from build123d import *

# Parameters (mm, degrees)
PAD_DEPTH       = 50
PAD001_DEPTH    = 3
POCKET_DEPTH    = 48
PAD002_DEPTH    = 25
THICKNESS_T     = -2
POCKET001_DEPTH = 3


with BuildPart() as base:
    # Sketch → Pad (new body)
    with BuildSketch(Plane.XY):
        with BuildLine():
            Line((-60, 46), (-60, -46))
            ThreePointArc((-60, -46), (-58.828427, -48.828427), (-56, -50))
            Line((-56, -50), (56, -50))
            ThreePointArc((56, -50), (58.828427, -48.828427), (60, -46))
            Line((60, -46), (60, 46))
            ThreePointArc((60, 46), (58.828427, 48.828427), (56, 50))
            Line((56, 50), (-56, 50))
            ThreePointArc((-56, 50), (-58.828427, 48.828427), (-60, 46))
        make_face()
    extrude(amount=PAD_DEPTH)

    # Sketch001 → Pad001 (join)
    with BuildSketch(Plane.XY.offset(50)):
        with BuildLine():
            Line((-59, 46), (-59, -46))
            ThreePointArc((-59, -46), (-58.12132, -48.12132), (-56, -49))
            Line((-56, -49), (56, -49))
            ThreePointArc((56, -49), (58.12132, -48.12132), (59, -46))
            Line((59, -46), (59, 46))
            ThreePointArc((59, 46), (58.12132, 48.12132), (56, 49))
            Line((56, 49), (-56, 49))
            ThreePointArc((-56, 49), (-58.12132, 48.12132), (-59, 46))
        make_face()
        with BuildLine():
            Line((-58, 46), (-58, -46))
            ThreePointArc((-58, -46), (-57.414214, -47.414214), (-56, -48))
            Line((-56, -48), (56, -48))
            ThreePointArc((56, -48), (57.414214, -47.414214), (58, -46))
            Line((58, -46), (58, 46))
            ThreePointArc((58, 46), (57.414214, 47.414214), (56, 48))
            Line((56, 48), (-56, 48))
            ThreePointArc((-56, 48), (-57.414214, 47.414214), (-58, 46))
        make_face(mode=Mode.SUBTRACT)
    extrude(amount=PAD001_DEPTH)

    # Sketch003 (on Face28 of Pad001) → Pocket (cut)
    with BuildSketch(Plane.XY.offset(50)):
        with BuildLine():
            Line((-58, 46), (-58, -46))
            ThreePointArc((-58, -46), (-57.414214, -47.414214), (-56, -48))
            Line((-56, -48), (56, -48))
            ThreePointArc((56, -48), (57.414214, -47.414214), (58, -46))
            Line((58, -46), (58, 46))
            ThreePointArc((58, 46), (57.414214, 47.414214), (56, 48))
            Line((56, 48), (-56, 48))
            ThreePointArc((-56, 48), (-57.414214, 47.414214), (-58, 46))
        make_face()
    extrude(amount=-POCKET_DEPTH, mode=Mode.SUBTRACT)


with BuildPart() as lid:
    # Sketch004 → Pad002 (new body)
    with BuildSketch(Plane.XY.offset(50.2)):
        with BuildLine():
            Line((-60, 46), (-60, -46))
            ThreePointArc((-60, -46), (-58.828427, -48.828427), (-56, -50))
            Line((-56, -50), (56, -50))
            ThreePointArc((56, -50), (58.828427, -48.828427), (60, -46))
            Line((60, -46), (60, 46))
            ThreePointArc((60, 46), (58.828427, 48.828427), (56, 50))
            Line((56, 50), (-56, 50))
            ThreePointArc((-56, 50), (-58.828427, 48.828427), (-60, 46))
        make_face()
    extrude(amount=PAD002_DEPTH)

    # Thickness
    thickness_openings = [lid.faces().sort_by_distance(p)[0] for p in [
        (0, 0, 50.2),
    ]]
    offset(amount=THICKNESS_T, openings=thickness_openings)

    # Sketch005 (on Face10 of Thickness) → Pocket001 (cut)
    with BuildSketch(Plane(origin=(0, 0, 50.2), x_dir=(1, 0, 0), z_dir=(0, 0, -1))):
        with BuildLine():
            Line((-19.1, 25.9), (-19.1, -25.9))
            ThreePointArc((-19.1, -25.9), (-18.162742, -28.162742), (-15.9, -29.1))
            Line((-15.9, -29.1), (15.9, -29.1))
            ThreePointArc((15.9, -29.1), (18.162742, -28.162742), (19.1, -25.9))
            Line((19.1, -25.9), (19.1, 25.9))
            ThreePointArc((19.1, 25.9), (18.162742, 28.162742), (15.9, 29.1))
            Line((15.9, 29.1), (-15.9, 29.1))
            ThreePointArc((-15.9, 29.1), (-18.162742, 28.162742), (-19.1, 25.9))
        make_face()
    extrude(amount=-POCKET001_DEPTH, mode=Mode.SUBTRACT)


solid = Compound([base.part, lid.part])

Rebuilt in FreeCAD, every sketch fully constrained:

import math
import FreeCAD as App
import Part
import Sketcher

V = App.Vector
Q = App.Units.Quantity


def faces_at(feature, points):
    """Names of the faces that lie closest to the given points."""
    faces = feature.Shape.Faces
    near = lambda p: min(range(len(faces)), key=lambda i: faces[i].distToShape(Part.Vertex(*p))[0])
    return sorted({f"Face{near(p) + 1}" for p in points})

doc = App.newDocument("Part")
params = doc.addObject("Spreadsheet::Sheet", "Params")
for row, (alias, value) in enumerate([
    ("sketch1_radius", "4 mm"),
    ("sketch1_width", "112 mm"),
    ("sketch1_height", "92 mm"),
    ("pad1_length", "50 mm"),
    ("sketch2_radius", "3.000001 mm"),
    ("sketch2_radius2", "1.999999 mm"),
    ("sketch2_width", "112 mm"),
    ("sketch2_height", "92 mm"),
    ("pad2_length", "3 mm"),
    ("sketch3_radius", "1.999999 mm"),
    ("sketch3_width", "112 mm"),
    ("sketch3_height", "92 mm"),
    ("pocket1_length", "48 mm"),
    ("sketch4_radius", "4 mm"),
    ("sketch4_width", "112 mm"),
    ("sketch4_height", "92 mm"),
    ("pad3_length", "25 mm"),
    ("thickness_wall", "2 mm"),
    ("sketch5_radius", "3.199999 mm"),
    ("sketch5_width", "31.8 mm"),
    ("sketch5_height", "51.8 mm"),
    ("pocket2_length", "3 mm"),
], start=1):
    params.set(f"A{row}", alias)
    params.set(f"B{row}", "=" + value)
    params.setAlias(f"B{row}", alias)

body = doc.addObject("PartDesign::Body", "Body")

# Sketch on XY plane
sketch1 = body.newObject("Sketcher::SketchObject", "Sketch")
sketch1.AttachmentSupport = (doc.getObject("XY_Plane"), [""])
sketch1.MapMode = "FlatFace"
sketch1.addGeometry([
    Part.LineSegment(V(-60, 46, 0), V(-60, -46, 0)),  # 0
    Part.ArcOfCircle(Part.Circle(V(-56, -46, 0), V(0, 0, 1), 4), math.radians(-180), math.radians(-90)),  # 1
    Part.LineSegment(V(-56, -50, 0), V(56, -50, 0)),  # 2
    Part.ArcOfCircle(Part.Circle(V(56, -46, 0), V(0, 0, 1), 4), math.radians(-90), math.radians(0)),  # 3
    Part.LineSegment(V(60, -46, 0), V(60, 46, 0)),  # 4
    Part.ArcOfCircle(Part.Circle(V(56, 46, 0), V(0, 0, 1), 4), math.radians(0), math.radians(90)),  # 5
    Part.LineSegment(V(56, 50, 0), V(-56, 50, 0)),  # 6
    Part.ArcOfCircle(Part.Circle(V(-56, 46, 0), V(0, 0, 1), 4), math.radians(90), math.radians(180)),  # 7
], False)
sketch1.addConstraint([
    Sketcher.Constraint("Tangent", 0, 2, 1, 1),
    Sketcher.Constraint("Tangent", 1, 2, 2, 1),
    Sketcher.Constraint("Tangent", 2, 2, 3, 1),
    Sketcher.Constraint("Tangent", 3, 2, 4, 1),
    Sketcher.Constraint("Tangent", 4, 2, 5, 1),
    Sketcher.Constraint("Tangent", 5, 2, 6, 1),
    Sketcher.Constraint("Tangent", 6, 2, 7, 1),
    Sketcher.Constraint("Tangent", 7, 2, 0, 1),
    Sketcher.Constraint("Vertical", 0),
    Sketcher.Constraint("Horizontal", 2),
    Sketcher.Constraint("Vertical", 4),
    Sketcher.Constraint("Horizontal", 6),
    Sketcher.Constraint("Equal", 1, 3),
    Sketcher.Constraint("Equal", 3, 5),
    Sketcher.Constraint("Equal", 5, 7),
    Sketcher.Constraint("Symmetric", 1, 3, 5, 3, -1, 1),
    Sketcher.Constraint("Radius", 1, Q("4 mm")),
    Sketcher.Constraint("DistanceX", 2, 1, 2, 2, Q("112 mm")),
    Sketcher.Constraint("DistanceY", 0, 2, 0, 1, Q("92 mm")),
])
sketch1.setExpression("Constraints[16]", "Params.sketch1_radius")
sketch1.setExpression("Constraints[17]", "Params.sketch1_width")
sketch1.setExpression("Constraints[18]", "Params.sketch1_height")
pad1 = body.newObject("PartDesign::Pad", "Pad")
pad1.Profile = sketch1
pad1.setExpression("Length", "Params.pad1_length")

# Sketch on XY plane
sketch2 = body.newObject("Sketcher::SketchObject", "Sketch001")
sketch2.AttachmentSupport = (doc.getObject("XY_Plane"), [""])
sketch2.MapMode = "FlatFace"
sketch2.AttachmentOffset = App.Placement(V(0, 0, 50), App.Rotation())
sketch2.addGeometry([
    Part.LineSegment(V(-59, 46, 0), V(-59, -46, 0)),  # 0
    Part.ArcOfCircle(Part.Circle(V(-56, -46, 0), V(0, 0, 1), 3), math.radians(-180), math.radians(-90)),  # 1
    Part.LineSegment(V(-56, -49, 0), V(56, -49, 0)),  # 2
    Part.ArcOfCircle(Part.Circle(V(56, -46, 0), V(0, 0, 1), 3), math.radians(-90), math.radians(0)),  # 3
    Part.LineSegment(V(59, -46, 0), V(59, 46, 0)),  # 4
    Part.ArcOfCircle(Part.Circle(V(56, 46, 0), V(0, 0, 1), 3), math.radians(0), math.radians(90)),  # 5
    Part.LineSegment(V(56, 49, 0), V(-56, 49, 0)),  # 6
    Part.ArcOfCircle(Part.Circle(V(-56, 46, 0), V(0, 0, 1), 3), math.radians(90), math.radians(180)),  # 7
    Part.LineSegment(V(-58, -46, 0), V(-58, 46, 0)),  # 8
    Part.ArcOfCircle(Part.Circle(V(-56, 46, 0), V(0, 0, 1), 2), math.radians(90), math.radians(180)),  # 9
    Part.LineSegment(V(-56, 48, 0), V(56, 48, 0)),  # 10
    Part.ArcOfCircle(Part.Circle(V(56, 46, 0), V(0, 0, 1), 2), math.radians(0), math.radians(90)),  # 11
    Part.LineSegment(V(58, 46, 0), V(58, -46, 0)),  # 12
    Part.ArcOfCircle(Part.Circle(V(56, -46, 0), V(0, 0, 1), 2), math.radians(-90), math.radians(0)),  # 13
    Part.LineSegment(V(56, -48, 0), V(-56, -48, 0)),  # 14
    Part.ArcOfCircle(Part.Circle(V(-56, -46, 0), V(0, 0, 1), 2), math.radians(180), math.radians(270)),  # 15
], False)
sketch2.addConstraint([
    Sketcher.Constraint("Tangent", 0, 2, 1, 1),
    Sketcher.Constraint("Tangent", 1, 2, 2, 1),
    Sketcher.Constraint("Tangent", 2, 2, 3, 1),
    Sketcher.Constraint("Tangent", 3, 2, 4, 1),
    Sketcher.Constraint("Tangent", 4, 2, 5, 1),
    Sketcher.Constraint("Tangent", 5, 2, 6, 1),
    Sketcher.Constraint("Tangent", 6, 2, 7, 1),
    Sketcher.Constraint("Tangent", 7, 2, 0, 1),
    Sketcher.Constraint("Tangent", 8, 2, 9, 2),
    Sketcher.Constraint("Tangent", 9, 1, 10, 1),
    Sketcher.Constraint("Tangent", 10, 2, 11, 2),
    Sketcher.Constraint("Tangent", 11, 1, 12, 1),
    Sketcher.Constraint("Tangent", 12, 2, 13, 2),
    Sketcher.Constraint("Tangent", 13, 1, 14, 1),
    Sketcher.Constraint("Tangent", 14, 2, 15, 2),
    Sketcher.Constraint("Tangent", 15, 1, 8, 1),
    Sketcher.Constraint("Vertical", 0),
    Sketcher.Constraint("Horizontal", 2),
    Sketcher.Constraint("Vertical", 4),
    Sketcher.Constraint("Horizontal", 6),
    Sketcher.Constraint("Vertical", 8),
    Sketcher.Constraint("Horizontal", 10),
    Sketcher.Constraint("Vertical", 12),
    Sketcher.Constraint("Horizontal", 14),
    Sketcher.Constraint("Coincident", 9, 3, 7, 3),
    Sketcher.Constraint("Coincident", 11, 3, 5, 3),
    Sketcher.Constraint("Coincident", 13, 3, 3, 3),
    Sketcher.Constraint("Equal", 1, 3),
    Sketcher.Constraint("Equal", 3, 5),
    Sketcher.Constraint("Equal", 5, 7),
    Sketcher.Constraint("Equal", 13, 15),
    Sketcher.Constraint("Symmetric", 1, 3, 5, 3, -1, 1),
    Sketcher.Constraint("Radius", 1, Q("3.000001 mm")),
    Sketcher.Constraint("Radius", 9, Q("1.999999 mm")),
    Sketcher.Constraint("DistanceX", 2, 1, 2, 2, Q("112 mm")),
    Sketcher.Constraint("DistanceY", 0, 2, 0, 1, Q("92 mm")),
])
sketch2.setExpression("Constraints[32]", "Params.sketch2_radius")
sketch2.setExpression("Constraints[33]", "Params.sketch2_radius2")
sketch2.setExpression("Constraints[34]", "Params.sketch2_width")
sketch2.setExpression("Constraints[35]", "Params.sketch2_height")
pad2 = body.newObject("PartDesign::Pad", "Pad001")
pad2.Profile = sketch2
pad2.setExpression("Length", "Params.pad2_length")

# Sketch on XY plane
sketch3 = body.newObject("Sketcher::SketchObject", "Sketch002")
sketch3.AttachmentSupport = (doc.getObject("XY_Plane"), [""])
sketch3.MapMode = "FlatFace"
sketch3.AttachmentOffset = App.Placement(V(0, 0, 50), App.Rotation())
sketch3.addGeometry([
    Part.LineSegment(V(-58, 46, 0), V(-58, -46, 0)),  # 0
    Part.ArcOfCircle(Part.Circle(V(-56, -46, 0), V(0, 0, 1), 2), math.radians(180), math.radians(270)),  # 1
    Part.LineSegment(V(-56, -48, 0), V(56, -48, 0)),  # 2
    Part.ArcOfCircle(Part.Circle(V(56, -46, 0), V(0, 0, 1), 2), math.radians(-90), math.radians(0)),  # 3
    Part.LineSegment(V(58, -46, 0), V(58, 46, 0)),  # 4
    Part.ArcOfCircle(Part.Circle(V(56, 46, 0), V(0, 0, 1), 2), math.radians(0), math.radians(90)),  # 5
    Part.LineSegment(V(56, 48, 0), V(-56, 48, 0)),  # 6
    Part.ArcOfCircle(Part.Circle(V(-56, 46, 0), V(0, 0, 1), 2), math.radians(90), math.radians(180)),  # 7
], False)
sketch3.addConstraint([
    Sketcher.Constraint("Tangent", 0, 2, 1, 1),
    Sketcher.Constraint("Tangent", 1, 2, 2, 1),
    Sketcher.Constraint("Tangent", 2, 2, 3, 1),
    Sketcher.Constraint("Tangent", 3, 2, 4, 1),
    Sketcher.Constraint("Tangent", 4, 2, 5, 1),
    Sketcher.Constraint("Tangent", 5, 2, 6, 1),
    Sketcher.Constraint("Tangent", 6, 2, 7, 1),
    Sketcher.Constraint("Tangent", 7, 2, 0, 1),
    Sketcher.Constraint("Vertical", 0),
    Sketcher.Constraint("Horizontal", 2),
    Sketcher.Constraint("Vertical", 4),
    Sketcher.Constraint("Horizontal", 6),
    Sketcher.Constraint("Equal", 1, 3),
    Sketcher.Constraint("Equal", 3, 5),
    Sketcher.Constraint("Equal", 5, 7),
    Sketcher.Constraint("Symmetric", 1, 3, 5, 3, -1, 1),
    Sketcher.Constraint("Radius", 1, Q("1.999999 mm")),
    Sketcher.Constraint("DistanceX", 2, 1, 2, 2, Q("112 mm")),
    Sketcher.Constraint("DistanceY", 0, 2, 0, 1, Q("92 mm")),
])
sketch3.setExpression("Constraints[16]", "Params.sketch3_radius")
sketch3.setExpression("Constraints[17]", "Params.sketch3_width")
sketch3.setExpression("Constraints[18]", "Params.sketch3_height")
pocket1 = body.newObject("PartDesign::Pocket", "Pocket")
pocket1.Profile = sketch3
pocket1.setExpression("Length", "Params.pocket1_length")
body2 = doc.addObject("PartDesign::Body", "Body001")

# Sketch on XY plane
sketch4 = body2.newObject("Sketcher::SketchObject", "Sketch003")
sketch4.AttachmentSupport = (doc.getObject("XY_Plane001"), [""])
sketch4.MapMode = "FlatFace"
sketch4.AttachmentOffset = App.Placement(V(0, 0, 50.2), App.Rotation())
sketch4.addGeometry([
    Part.LineSegment(V(-60, 46, 0), V(-60, -46, 0)),  # 0
    Part.ArcOfCircle(Part.Circle(V(-56, -46, 0), V(0, 0, 1), 4), math.radians(-180), math.radians(-90)),  # 1
    Part.LineSegment(V(-56, -50, 0), V(56, -50, 0)),  # 2
    Part.ArcOfCircle(Part.Circle(V(56, -46, 0), V(0, 0, 1), 4), math.radians(-90), math.radians(0)),  # 3
    Part.LineSegment(V(60, -46, 0), V(60, 46, 0)),  # 4
    Part.ArcOfCircle(Part.Circle(V(56, 46, 0), V(0, 0, 1), 4), math.radians(0), math.radians(90)),  # 5
    Part.LineSegment(V(56, 50, 0), V(-56, 50, 0)),  # 6
    Part.ArcOfCircle(Part.Circle(V(-56, 46, 0), V(0, 0, 1), 4), math.radians(90), math.radians(180)),  # 7
], False)
sketch4.addConstraint([
    Sketcher.Constraint("Tangent", 0, 2, 1, 1),
    Sketcher.Constraint("Tangent", 1, 2, 2, 1),
    Sketcher.Constraint("Tangent", 2, 2, 3, 1),
    Sketcher.Constraint("Tangent", 3, 2, 4, 1),
    Sketcher.Constraint("Tangent", 4, 2, 5, 1),
    Sketcher.Constraint("Tangent", 5, 2, 6, 1),
    Sketcher.Constraint("Tangent", 6, 2, 7, 1),
    Sketcher.Constraint("Tangent", 7, 2, 0, 1),
    Sketcher.Constraint("Vertical", 0),
    Sketcher.Constraint("Horizontal", 2),
    Sketcher.Constraint("Vertical", 4),
    Sketcher.Constraint("Horizontal", 6),
    Sketcher.Constraint("Equal", 1, 3),
    Sketcher.Constraint("Equal", 3, 5),
    Sketcher.Constraint("Equal", 5, 7),
    Sketcher.Constraint("Symmetric", 1, 3, 5, 3, -1, 1),
    Sketcher.Constraint("Radius", 1, Q("4 mm")),
    Sketcher.Constraint("DistanceX", 2, 1, 2, 2, Q("112 mm")),
    Sketcher.Constraint("DistanceY", 0, 2, 0, 1, Q("92 mm")),
])
sketch4.setExpression("Constraints[16]", "Params.sketch4_radius")
sketch4.setExpression("Constraints[17]", "Params.sketch4_width")
sketch4.setExpression("Constraints[18]", "Params.sketch4_height")
pad3 = body2.newObject("PartDesign::Pad", "Pad002")
pad3.Profile = sketch4
pad3.setExpression("Length", "Params.pad3_length")
doc.recompute()

thickness = body2.newObject("PartDesign::Thickness", "Thickness")
thickness.Base = (pad3, faces_at(pad3, [(0, 0, 50.2)]))
thickness.setExpression("Value", "Params.thickness_wall")
thickness.Reversed = True
thickness.Join = "Arc"

# Sketch on XY plane
sketch5 = body2.newObject("Sketcher::SketchObject", "Sketch004")
sketch5.AttachmentSupport = (doc.getObject("XY_Plane001"), [""])
sketch5.MapMode = "FlatFace"
sketch5.AttachmentOffset = App.Placement(V(0, 0, 50.2), App.Rotation())
sketch5.addGeometry([
    Part.LineSegment(V(-19.1, -25.9, 0), V(-19.1, 25.9, 0)),  # 0
    Part.ArcOfCircle(Part.Circle(V(-15.9, 25.9, 0), V(0, 0, 1), 3.2), math.radians(90), math.radians(180)),  # 1
    Part.LineSegment(V(-15.9, 29.1, 0), V(15.9, 29.1, 0)),  # 2
    Part.ArcOfCircle(Part.Circle(V(15.9, 25.9, 0), V(0, 0, 1), 3.2), math.radians(0), math.radians(90)),  # 3
    Part.LineSegment(V(19.1, 25.9, 0), V(19.1, -25.9, 0)),  # 4
    Part.ArcOfCircle(Part.Circle(V(15.9, -25.9, 0), V(0, 0, 1), 3.2), math.radians(-90), math.radians(0)),  # 5
    Part.LineSegment(V(15.9, -29.1, 0), V(-15.9, -29.1, 0)),  # 6
    Part.ArcOfCircle(Part.Circle(V(-15.9, -25.9, 0), V(0, 0, 1), 3.2), math.radians(180), math.radians(270)),  # 7
], False)
sketch5.addConstraint([
    Sketcher.Constraint("Tangent", 0, 2, 1, 2),
    Sketcher.Constraint("Tangent", 1, 1, 2, 1),
    Sketcher.Constraint("Tangent", 2, 2, 3, 2),
    Sketcher.Constraint("Tangent", 3, 1, 4, 1),
    Sketcher.Constraint("Tangent", 4, 2, 5, 2),
    Sketcher.Constraint("Tangent", 5, 1, 6, 1),
    Sketcher.Constraint("Tangent", 6, 2, 7, 2),
    Sketcher.Constraint("Tangent", 7, 1, 0, 1),
    Sketcher.Constraint("Vertical", 0),
    Sketcher.Constraint("Horizontal", 2),
    Sketcher.Constraint("Vertical", 4),
    Sketcher.Constraint("Horizontal", 6),
    Sketcher.Constraint("Equal", 1, 3),
    Sketcher.Constraint("Equal", 3, 5),
    Sketcher.Constraint("Equal", 5, 7),
    Sketcher.Constraint("Symmetric", 1, 3, 5, 3, -1, 1),
    Sketcher.Constraint("Radius", 1, Q("3.199999 mm")),
    Sketcher.Constraint("DistanceX", 2, 1, 2, 2, Q("31.8 mm")),
    Sketcher.Constraint("DistanceY", 0, 1, 0, 2, Q("51.8 mm")),
])
sketch5.setExpression("Constraints[16]", "Params.sketch5_radius")
sketch5.setExpression("Constraints[17]", "Params.sketch5_width")
sketch5.setExpression("Constraints[18]", "Params.sketch5_height")
pocket2 = body2.newObject("PartDesign::Pocket", "Pocket001")
pocket2.Profile = sketch5
pocket2.setExpression("Length", "Params.pocket2_length")
pocket2.Reversed = True

doc.recompute()
